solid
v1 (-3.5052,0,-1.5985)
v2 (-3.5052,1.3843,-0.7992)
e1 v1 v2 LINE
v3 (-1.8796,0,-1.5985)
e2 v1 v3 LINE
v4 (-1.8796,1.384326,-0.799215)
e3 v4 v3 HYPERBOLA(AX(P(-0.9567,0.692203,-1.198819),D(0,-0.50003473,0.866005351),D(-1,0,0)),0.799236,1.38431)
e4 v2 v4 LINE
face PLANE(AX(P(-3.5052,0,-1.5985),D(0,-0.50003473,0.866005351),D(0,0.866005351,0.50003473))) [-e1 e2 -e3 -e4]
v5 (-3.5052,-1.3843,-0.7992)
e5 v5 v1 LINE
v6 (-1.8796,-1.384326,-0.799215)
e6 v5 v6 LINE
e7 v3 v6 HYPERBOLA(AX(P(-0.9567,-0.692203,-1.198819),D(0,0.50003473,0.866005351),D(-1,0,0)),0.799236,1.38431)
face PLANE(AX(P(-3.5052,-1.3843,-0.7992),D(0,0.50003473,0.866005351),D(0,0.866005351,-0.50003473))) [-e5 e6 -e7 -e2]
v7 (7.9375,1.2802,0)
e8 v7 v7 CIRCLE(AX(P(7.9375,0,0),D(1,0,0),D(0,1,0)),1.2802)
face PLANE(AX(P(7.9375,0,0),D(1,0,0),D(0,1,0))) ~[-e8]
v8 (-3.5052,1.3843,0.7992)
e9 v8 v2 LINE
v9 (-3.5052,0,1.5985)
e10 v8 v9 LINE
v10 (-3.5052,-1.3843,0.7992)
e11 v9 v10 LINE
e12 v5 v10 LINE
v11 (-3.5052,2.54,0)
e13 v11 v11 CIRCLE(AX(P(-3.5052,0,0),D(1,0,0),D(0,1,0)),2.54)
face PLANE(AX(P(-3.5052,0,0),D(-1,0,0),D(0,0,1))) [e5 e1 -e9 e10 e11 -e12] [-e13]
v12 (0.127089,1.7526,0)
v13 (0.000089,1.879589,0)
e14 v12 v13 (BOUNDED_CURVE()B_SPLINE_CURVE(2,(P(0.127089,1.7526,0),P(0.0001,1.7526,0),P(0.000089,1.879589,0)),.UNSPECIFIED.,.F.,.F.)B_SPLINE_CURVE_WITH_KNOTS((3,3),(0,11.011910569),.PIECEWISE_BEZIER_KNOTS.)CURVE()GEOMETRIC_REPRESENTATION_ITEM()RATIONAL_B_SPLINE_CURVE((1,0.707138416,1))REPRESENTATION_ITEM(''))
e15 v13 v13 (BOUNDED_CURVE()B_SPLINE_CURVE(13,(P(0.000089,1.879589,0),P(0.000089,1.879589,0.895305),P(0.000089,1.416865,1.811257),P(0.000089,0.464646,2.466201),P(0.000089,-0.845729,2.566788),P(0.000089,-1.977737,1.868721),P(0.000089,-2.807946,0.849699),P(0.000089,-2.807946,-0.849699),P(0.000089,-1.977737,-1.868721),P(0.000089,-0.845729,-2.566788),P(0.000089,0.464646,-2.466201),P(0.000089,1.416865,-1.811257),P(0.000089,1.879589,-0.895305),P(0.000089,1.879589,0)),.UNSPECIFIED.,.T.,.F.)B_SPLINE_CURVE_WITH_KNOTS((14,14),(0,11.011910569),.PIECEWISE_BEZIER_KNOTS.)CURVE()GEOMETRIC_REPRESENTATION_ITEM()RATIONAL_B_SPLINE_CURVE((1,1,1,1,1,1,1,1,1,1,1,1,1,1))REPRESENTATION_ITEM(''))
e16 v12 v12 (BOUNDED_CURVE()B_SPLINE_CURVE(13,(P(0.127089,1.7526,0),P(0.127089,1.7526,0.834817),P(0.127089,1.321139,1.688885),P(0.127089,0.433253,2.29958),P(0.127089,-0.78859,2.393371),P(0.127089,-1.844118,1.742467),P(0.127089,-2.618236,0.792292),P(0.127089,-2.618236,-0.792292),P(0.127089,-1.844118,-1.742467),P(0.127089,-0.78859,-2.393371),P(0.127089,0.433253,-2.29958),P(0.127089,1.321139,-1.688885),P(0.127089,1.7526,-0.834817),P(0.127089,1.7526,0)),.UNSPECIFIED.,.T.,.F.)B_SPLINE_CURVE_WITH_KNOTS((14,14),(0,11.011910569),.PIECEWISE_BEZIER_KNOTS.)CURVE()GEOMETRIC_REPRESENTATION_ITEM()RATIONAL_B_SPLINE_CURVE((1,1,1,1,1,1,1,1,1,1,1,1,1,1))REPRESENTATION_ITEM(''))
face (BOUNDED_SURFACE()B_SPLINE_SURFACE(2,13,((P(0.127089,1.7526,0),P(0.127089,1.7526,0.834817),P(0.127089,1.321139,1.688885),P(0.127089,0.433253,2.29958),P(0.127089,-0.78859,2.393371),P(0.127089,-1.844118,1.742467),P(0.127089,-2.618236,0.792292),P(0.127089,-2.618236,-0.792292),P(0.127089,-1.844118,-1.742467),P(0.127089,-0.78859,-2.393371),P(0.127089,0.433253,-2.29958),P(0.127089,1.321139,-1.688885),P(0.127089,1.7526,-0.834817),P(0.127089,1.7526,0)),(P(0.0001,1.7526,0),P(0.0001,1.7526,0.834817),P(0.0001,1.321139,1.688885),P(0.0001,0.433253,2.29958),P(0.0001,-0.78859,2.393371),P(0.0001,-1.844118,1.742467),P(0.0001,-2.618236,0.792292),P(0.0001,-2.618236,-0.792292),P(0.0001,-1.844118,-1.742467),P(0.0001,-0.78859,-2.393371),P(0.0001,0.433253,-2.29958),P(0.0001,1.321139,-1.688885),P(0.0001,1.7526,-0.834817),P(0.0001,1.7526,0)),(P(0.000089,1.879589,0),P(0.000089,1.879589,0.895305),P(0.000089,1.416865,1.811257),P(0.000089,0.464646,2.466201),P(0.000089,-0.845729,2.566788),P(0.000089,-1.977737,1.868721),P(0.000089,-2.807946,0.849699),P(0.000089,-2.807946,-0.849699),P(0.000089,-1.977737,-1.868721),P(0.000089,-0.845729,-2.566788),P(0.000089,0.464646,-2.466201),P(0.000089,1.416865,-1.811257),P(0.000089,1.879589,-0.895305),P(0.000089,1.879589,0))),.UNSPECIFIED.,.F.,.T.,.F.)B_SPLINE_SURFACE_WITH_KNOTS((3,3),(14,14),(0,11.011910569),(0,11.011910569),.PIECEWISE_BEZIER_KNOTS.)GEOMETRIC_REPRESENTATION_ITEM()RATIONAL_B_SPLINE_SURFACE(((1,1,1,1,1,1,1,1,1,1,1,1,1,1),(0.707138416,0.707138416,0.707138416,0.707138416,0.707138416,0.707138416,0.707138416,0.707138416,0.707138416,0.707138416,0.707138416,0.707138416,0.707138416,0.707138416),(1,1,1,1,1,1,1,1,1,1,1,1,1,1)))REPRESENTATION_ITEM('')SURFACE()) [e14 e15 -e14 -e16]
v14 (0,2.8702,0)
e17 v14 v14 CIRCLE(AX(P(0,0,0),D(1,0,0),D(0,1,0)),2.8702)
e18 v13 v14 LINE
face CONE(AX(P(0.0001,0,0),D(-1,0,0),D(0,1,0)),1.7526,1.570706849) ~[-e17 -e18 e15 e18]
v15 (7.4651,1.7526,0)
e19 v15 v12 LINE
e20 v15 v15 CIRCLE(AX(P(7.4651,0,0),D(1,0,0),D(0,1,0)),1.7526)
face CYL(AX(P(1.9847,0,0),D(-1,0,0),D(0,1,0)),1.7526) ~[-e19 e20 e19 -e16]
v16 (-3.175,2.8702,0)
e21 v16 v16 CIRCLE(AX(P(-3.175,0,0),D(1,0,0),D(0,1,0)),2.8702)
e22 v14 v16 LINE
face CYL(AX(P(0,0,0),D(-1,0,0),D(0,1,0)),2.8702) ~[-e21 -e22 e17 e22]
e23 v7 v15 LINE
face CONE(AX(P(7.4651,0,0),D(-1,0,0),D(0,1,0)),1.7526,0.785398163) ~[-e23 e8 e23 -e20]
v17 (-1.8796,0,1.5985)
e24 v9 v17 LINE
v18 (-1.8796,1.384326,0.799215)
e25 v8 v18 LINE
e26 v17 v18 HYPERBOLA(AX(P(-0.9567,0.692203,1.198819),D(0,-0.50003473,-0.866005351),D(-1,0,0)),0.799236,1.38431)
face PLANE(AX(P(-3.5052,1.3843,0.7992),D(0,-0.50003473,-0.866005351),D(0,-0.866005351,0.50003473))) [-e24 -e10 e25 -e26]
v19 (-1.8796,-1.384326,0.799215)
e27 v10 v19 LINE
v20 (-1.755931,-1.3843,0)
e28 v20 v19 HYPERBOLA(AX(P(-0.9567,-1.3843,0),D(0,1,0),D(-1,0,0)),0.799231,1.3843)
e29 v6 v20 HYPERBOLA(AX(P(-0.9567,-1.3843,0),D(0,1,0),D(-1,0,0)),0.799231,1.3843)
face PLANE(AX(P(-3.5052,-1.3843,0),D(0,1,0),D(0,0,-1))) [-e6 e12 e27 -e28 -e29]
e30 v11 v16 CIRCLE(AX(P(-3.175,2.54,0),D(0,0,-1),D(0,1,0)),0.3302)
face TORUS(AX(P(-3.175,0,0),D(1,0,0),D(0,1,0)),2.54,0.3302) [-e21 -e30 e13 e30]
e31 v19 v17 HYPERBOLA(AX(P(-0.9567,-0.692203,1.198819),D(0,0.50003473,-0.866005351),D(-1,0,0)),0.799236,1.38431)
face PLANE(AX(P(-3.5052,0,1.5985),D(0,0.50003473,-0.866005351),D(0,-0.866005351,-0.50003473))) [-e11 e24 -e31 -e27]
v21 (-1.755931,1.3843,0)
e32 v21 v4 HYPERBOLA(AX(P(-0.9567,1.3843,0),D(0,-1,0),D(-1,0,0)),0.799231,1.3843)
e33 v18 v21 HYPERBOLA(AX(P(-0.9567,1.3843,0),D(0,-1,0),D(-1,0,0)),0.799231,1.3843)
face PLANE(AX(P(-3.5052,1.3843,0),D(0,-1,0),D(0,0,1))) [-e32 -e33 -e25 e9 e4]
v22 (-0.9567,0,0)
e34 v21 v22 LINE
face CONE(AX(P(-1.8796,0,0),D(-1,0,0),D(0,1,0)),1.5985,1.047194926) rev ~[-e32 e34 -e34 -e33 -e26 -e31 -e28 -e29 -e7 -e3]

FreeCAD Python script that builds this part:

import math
import FreeCAD as App
import Part
import Sketcher
Q = App.Units.Quantity


def edges_at(feature, points):
    """Names of the edges that pass closest to the given points."""
    edges = feature.Shape.Edges
    near = lambda p: min(range(len(edges)), key=lambda i: edges[i].distToShape(Part.Vertex(*p))[0])
    return sorted({f"Edge{near(p) + 1}" for p in points})

doc = App.newDocument("Part")
params = doc.addObject("Spreadsheet::Sheet", "Params")
for row, (alias, value) in enumerate([
    ("sketch1_width", "0.3125 in"),
    ("sketch1_width2", "0.138 in"),
    ("sketch1_width3", "0.064 in"),
    ("sketch1_height", "0.069 in"),
    ("sketch1_height2", "0.044 in"),
    ("revolution_angle", "360 deg"),
    ("pad1_length", "1.7493 mm"),
    ("fillet_radius", "0.013 in"),
    ("chamfer_size", "0.0185984 in"),
    ("chamfer_size2", "0.0185984 in"),
    ("fillet2_radius", "0.005 in"),
], start=1):
    params.set(f"A{row}", alias)
    params.set(f"B{row}", "=" + value)
    params.setAlias(f"B{row}", alias)

body = doc.addObject("PartDesign::Body", "Body")

sketch1 = body.newObject("Sketcher::SketchObject", "Sketch")
sketch1.AttachmentSupport = (doc.getObject("XY_Plane"), [""])
sketch1.MapMode = "FlatFace"
sketch1.addGeometry([
    Part.LineSegment(App.Vector(-1.9, 1.6, 0), App.Vector(-1, 0, 0)),
    Part.LineSegment(App.Vector(-1, 0, 0), App.Vector(7.9, 0, 0)),
    Part.LineSegment(App.Vector(7.9, 0, 0), App.Vector(7.9, 1.8, 0)),
    Part.LineSegment(App.Vector(7.9, 1.8, 0), App.Vector(0, 1.8, 0)),
    Part.LineSegment(App.Vector(0, 1.8, 0), App.Vector(0, 2.9, 0)),
    Part.LineSegment(App.Vector(0, 2.9, 0), App.Vector(-3.5, 2.9, 0)),
    Part.LineSegment(App.Vector(-3.5, 2.9, 0), App.Vector(-3.5, 1.6, 0)),
    Part.LineSegment(App.Vector(-3.5, 1.6, 0), App.Vector(-1.9, 1.6, 0)),
], False)
sketch1.addConstraint([
    Sketcher.Constraint("Coincident", 0, 2, 1, 1),
    Sketcher.Constraint("Coincident", 1, 2, 2, 1),
    Sketcher.Constraint("Coincident", 2, 2, 3, 1),
    Sketcher.Constraint("Coincident", 3, 2, 4, 1),
    Sketcher.Constraint("Coincident", 4, 2, 5, 1),
    Sketcher.Constraint("Coincident", 5, 2, 6, 1),
    Sketcher.Constraint("Coincident", 6, 2, 7, 1),
    Sketcher.Constraint("Coincident", 7, 2, 0, 1),
    Sketcher.Constraint("Horizontal", 1),
    Sketcher.Constraint("Vertical", 2),
    Sketcher.Constraint("Horizontal", 3),
    Sketcher.Constraint("Vertical", 4),
    Sketcher.Constraint("Horizontal", 5),
    Sketcher.Constraint("Vertical", 6),
    Sketcher.Constraint("Horizontal", 7),
    Sketcher.Constraint("PointOnObject", 0, 2, -1),
    Sketcher.Constraint("PointOnObject", 3, 2, -2),
    Sketcher.Constraint("Angle", 0, Q("-59.9998 deg")),
    Sketcher.Constraint("DistanceX", 3, 2, 3, 1, Q("0.3125 in")),
    Sketcher.Constraint("DistanceX", 5, 2, 5, 1, Q("0.138 in")),
    Sketcher.Constraint("DistanceX", 7, 1, 7, 2, Q("0.064 in")),
    Sketcher.Constraint("DistanceY", 2, 1, 2, 2, Q("0.069 in")),
    Sketcher.Constraint("DistanceY", 4, 1, 4, 2, Q("0.044 in")),
    Sketcher.Constraint("DistanceX", 1, 1, 1, 2, 8.8942),
])
sketch1.setExpression("Constraints[18]", "Params.sketch1_width")
sketch1.setExpression("Constraints[19]", "Params.sketch1_width2")
sketch1.setExpression("Constraints[20]", "Params.sketch1_width3")
sketch1.setExpression("Constraints[21]", "Params.sketch1_height")
sketch1.setExpression("Constraints[22]", "Params.sketch1_height2")
revolution = body.newObject("PartDesign::Revolution", "Revolution")
revolution.Profile = sketch1
revolution.ReferenceAxis = (sketch1, ["H_Axis"])
revolution.setExpression("Angle", "Params.revolution_angle")

sketch2 = body.newObject("Sketcher::SketchObject", "Sketch001")
sketch2.AttachmentSupport = (doc.getObject("YZ_Plane"), [""])
sketch2.MapMode = "FlatFace"
sketch2.AttachmentOffset = App.Placement(App.Vector(0, 0, -0.138 * 25.4), App.Rotation())
sketch2.addGeometry([
    Part.LineSegment(App.Vector(1.4, 0.8, 0), App.Vector(0, 1.6, 0)),
    Part.ArcOfCircle(Part.Circle(App.Vector(0, 0, 0), App.Vector(0, 0, 1), 1.6), math.radians(30), math.radians(90)),
    Part.ArcOfCircle(Part.Circle(App.Vector(0, 0, 0), App.Vector(0, 0, 1), 1.6), math.radians(90), math.radians(150)),
    Part.LineSegment(App.Vector(0, 1.6, 0), App.Vector(-1.4, 0.8, 0)),
    Part.ArcOfCircle(Part.Circle(App.Vector(0, 0, 0), App.Vector(0, 0, 1), 1.6), math.radians(-30), math.radians(30)),
    Part.LineSegment(App.Vector(1.4, 0.8, 0), App.Vector(1.4, -0.8, 0)),
    Part.LineSegment(App.Vector(-1.4, 0.8, 0), App.Vector(-1.4, -0.8, 0)),
    Part.ArcOfCircle(Part.Circle(App.Vector(0, 0, 0), App.Vector(0, 0, 1), 1.6), math.radians(150), math.radians(210)),
    Part.LineSegment(App.Vector(-1.4, -0.8, 0), App.Vector(0, -1.6, 0)),
    Part.ArcOfCircle(Part.Circle(App.Vector(0, 0, 0), App.Vector(0, 0, 1), 1.6), math.radians(-150), math.radians(-90)),
    Part.ArcOfCircle(Part.Circle(App.Vector(0, 0, 0), App.Vector(0, 0, 1), 1.6), math.radians(-90), math.radians(-30)),
    Part.LineSegment(App.Vector(0, -1.6, 0), App.Vector(1.4, -0.8, 0)),
], False)
sketch2.addConstraint([
    Sketcher.Constraint("Coincident", 0, 1, 1, 1),
    Sketcher.Constraint("Coincident", 1, 2, 0, 2),
    Sketcher.Constraint("Coincident", 2, 1, 3, 1),
    Sketcher.Constraint("Coincident", 3, 2, 2, 2),
    Sketcher.Constraint("Coincident", 4, 1, 5, 2),
    Sketcher.Constraint("Coincident", 5, 1, 4, 2),
    Sketcher.Constraint("Coincident", 6, 1, 7, 1),
    Sketcher.Constraint("Coincident", 7, 2, 6, 2),
    Sketcher.Constraint("Coincident", 8, 1, 9, 1),
    Sketcher.Constraint("Coincident", 9, 2, 8, 2),
    Sketcher.Constraint("Coincident", 10, 1, 11, 1),
    Sketcher.Constraint("Coincident", 11, 2, 10, 2),
    Sketcher.Constraint("Vertical", 5),
    Sketcher.Constraint("Vertical", 6),
    Sketcher.Constraint("Coincident", 1, 3, -1, 1),
    Sketcher.Constraint("Coincident", 2, 3, -1, 1),
    Sketcher.Constraint("Coincident", 4, 3, -1, 1),
    Sketcher.Constraint("Coincident", 7, 3, -1, 1),
    Sketcher.Constraint("Coincident", 9, 3, -1, 1),
    Sketcher.Constraint("Coincident", 10, 3, -1, 1),
    Sketcher.Constraint("Coincident", 2, 1, 1, 2),
    Sketcher.Constraint("Coincident", 5, 1, 0, 1),
    Sketcher.Constraint("Coincident", 6, 1, 3, 2),
    Sketcher.Constraint("Coincident", 8, 1, 7, 2),
    Sketcher.Constraint("Coincident", 10, 1, 9, 2),
    Sketcher.Constraint("PointOnObject", 1, 2, -2),
    Sketcher.Constraint("PointOnObject", 9, 2, -2),
    Sketcher.Constraint("Parallel", 0, 8),
    Sketcher.Constraint("Parallel", 3, 11),
    Sketcher.Constraint("Radius", 1, 1.5985),
    Sketcher.Constraint("DistanceY", 5, 2, 5, 1, 1.5984),
])
pad1 = body.newObject("PartDesign::Pad", "Pad")
pad1.Profile = sketch2
pad1.setExpression("Length", "Params.pad1_length")
doc.recompute()

fillet = body.newObject("PartDesign::Fillet", "Fillet")
fillet.Base = (pad1, edges_at(pad1, [(-3.505, -2.87, 0)]))
fillet.setExpression("Radius", "Params.fillet_radius")
doc.recompute()

chamfer = body.newObject("PartDesign::Chamfer", "Chamfer")
chamfer.Base = (fillet, edges_at(fillet, [(7.938, -1.753, 0)]))
chamfer.ChamferType = "Two distances"
chamfer.setExpression("Size", "Params.chamfer_size")
chamfer.setExpression("Size2", "Params.chamfer_size2")
doc.recompute()

fillet2 = body.newObject("PartDesign::Fillet", "Fillet001")
fillet2.Base = (chamfer, edges_at(chamfer, [(0, -1.753, 0)]))
fillet2.setExpression("Radius", "Params.fillet2_radius")

doc.recompute()
